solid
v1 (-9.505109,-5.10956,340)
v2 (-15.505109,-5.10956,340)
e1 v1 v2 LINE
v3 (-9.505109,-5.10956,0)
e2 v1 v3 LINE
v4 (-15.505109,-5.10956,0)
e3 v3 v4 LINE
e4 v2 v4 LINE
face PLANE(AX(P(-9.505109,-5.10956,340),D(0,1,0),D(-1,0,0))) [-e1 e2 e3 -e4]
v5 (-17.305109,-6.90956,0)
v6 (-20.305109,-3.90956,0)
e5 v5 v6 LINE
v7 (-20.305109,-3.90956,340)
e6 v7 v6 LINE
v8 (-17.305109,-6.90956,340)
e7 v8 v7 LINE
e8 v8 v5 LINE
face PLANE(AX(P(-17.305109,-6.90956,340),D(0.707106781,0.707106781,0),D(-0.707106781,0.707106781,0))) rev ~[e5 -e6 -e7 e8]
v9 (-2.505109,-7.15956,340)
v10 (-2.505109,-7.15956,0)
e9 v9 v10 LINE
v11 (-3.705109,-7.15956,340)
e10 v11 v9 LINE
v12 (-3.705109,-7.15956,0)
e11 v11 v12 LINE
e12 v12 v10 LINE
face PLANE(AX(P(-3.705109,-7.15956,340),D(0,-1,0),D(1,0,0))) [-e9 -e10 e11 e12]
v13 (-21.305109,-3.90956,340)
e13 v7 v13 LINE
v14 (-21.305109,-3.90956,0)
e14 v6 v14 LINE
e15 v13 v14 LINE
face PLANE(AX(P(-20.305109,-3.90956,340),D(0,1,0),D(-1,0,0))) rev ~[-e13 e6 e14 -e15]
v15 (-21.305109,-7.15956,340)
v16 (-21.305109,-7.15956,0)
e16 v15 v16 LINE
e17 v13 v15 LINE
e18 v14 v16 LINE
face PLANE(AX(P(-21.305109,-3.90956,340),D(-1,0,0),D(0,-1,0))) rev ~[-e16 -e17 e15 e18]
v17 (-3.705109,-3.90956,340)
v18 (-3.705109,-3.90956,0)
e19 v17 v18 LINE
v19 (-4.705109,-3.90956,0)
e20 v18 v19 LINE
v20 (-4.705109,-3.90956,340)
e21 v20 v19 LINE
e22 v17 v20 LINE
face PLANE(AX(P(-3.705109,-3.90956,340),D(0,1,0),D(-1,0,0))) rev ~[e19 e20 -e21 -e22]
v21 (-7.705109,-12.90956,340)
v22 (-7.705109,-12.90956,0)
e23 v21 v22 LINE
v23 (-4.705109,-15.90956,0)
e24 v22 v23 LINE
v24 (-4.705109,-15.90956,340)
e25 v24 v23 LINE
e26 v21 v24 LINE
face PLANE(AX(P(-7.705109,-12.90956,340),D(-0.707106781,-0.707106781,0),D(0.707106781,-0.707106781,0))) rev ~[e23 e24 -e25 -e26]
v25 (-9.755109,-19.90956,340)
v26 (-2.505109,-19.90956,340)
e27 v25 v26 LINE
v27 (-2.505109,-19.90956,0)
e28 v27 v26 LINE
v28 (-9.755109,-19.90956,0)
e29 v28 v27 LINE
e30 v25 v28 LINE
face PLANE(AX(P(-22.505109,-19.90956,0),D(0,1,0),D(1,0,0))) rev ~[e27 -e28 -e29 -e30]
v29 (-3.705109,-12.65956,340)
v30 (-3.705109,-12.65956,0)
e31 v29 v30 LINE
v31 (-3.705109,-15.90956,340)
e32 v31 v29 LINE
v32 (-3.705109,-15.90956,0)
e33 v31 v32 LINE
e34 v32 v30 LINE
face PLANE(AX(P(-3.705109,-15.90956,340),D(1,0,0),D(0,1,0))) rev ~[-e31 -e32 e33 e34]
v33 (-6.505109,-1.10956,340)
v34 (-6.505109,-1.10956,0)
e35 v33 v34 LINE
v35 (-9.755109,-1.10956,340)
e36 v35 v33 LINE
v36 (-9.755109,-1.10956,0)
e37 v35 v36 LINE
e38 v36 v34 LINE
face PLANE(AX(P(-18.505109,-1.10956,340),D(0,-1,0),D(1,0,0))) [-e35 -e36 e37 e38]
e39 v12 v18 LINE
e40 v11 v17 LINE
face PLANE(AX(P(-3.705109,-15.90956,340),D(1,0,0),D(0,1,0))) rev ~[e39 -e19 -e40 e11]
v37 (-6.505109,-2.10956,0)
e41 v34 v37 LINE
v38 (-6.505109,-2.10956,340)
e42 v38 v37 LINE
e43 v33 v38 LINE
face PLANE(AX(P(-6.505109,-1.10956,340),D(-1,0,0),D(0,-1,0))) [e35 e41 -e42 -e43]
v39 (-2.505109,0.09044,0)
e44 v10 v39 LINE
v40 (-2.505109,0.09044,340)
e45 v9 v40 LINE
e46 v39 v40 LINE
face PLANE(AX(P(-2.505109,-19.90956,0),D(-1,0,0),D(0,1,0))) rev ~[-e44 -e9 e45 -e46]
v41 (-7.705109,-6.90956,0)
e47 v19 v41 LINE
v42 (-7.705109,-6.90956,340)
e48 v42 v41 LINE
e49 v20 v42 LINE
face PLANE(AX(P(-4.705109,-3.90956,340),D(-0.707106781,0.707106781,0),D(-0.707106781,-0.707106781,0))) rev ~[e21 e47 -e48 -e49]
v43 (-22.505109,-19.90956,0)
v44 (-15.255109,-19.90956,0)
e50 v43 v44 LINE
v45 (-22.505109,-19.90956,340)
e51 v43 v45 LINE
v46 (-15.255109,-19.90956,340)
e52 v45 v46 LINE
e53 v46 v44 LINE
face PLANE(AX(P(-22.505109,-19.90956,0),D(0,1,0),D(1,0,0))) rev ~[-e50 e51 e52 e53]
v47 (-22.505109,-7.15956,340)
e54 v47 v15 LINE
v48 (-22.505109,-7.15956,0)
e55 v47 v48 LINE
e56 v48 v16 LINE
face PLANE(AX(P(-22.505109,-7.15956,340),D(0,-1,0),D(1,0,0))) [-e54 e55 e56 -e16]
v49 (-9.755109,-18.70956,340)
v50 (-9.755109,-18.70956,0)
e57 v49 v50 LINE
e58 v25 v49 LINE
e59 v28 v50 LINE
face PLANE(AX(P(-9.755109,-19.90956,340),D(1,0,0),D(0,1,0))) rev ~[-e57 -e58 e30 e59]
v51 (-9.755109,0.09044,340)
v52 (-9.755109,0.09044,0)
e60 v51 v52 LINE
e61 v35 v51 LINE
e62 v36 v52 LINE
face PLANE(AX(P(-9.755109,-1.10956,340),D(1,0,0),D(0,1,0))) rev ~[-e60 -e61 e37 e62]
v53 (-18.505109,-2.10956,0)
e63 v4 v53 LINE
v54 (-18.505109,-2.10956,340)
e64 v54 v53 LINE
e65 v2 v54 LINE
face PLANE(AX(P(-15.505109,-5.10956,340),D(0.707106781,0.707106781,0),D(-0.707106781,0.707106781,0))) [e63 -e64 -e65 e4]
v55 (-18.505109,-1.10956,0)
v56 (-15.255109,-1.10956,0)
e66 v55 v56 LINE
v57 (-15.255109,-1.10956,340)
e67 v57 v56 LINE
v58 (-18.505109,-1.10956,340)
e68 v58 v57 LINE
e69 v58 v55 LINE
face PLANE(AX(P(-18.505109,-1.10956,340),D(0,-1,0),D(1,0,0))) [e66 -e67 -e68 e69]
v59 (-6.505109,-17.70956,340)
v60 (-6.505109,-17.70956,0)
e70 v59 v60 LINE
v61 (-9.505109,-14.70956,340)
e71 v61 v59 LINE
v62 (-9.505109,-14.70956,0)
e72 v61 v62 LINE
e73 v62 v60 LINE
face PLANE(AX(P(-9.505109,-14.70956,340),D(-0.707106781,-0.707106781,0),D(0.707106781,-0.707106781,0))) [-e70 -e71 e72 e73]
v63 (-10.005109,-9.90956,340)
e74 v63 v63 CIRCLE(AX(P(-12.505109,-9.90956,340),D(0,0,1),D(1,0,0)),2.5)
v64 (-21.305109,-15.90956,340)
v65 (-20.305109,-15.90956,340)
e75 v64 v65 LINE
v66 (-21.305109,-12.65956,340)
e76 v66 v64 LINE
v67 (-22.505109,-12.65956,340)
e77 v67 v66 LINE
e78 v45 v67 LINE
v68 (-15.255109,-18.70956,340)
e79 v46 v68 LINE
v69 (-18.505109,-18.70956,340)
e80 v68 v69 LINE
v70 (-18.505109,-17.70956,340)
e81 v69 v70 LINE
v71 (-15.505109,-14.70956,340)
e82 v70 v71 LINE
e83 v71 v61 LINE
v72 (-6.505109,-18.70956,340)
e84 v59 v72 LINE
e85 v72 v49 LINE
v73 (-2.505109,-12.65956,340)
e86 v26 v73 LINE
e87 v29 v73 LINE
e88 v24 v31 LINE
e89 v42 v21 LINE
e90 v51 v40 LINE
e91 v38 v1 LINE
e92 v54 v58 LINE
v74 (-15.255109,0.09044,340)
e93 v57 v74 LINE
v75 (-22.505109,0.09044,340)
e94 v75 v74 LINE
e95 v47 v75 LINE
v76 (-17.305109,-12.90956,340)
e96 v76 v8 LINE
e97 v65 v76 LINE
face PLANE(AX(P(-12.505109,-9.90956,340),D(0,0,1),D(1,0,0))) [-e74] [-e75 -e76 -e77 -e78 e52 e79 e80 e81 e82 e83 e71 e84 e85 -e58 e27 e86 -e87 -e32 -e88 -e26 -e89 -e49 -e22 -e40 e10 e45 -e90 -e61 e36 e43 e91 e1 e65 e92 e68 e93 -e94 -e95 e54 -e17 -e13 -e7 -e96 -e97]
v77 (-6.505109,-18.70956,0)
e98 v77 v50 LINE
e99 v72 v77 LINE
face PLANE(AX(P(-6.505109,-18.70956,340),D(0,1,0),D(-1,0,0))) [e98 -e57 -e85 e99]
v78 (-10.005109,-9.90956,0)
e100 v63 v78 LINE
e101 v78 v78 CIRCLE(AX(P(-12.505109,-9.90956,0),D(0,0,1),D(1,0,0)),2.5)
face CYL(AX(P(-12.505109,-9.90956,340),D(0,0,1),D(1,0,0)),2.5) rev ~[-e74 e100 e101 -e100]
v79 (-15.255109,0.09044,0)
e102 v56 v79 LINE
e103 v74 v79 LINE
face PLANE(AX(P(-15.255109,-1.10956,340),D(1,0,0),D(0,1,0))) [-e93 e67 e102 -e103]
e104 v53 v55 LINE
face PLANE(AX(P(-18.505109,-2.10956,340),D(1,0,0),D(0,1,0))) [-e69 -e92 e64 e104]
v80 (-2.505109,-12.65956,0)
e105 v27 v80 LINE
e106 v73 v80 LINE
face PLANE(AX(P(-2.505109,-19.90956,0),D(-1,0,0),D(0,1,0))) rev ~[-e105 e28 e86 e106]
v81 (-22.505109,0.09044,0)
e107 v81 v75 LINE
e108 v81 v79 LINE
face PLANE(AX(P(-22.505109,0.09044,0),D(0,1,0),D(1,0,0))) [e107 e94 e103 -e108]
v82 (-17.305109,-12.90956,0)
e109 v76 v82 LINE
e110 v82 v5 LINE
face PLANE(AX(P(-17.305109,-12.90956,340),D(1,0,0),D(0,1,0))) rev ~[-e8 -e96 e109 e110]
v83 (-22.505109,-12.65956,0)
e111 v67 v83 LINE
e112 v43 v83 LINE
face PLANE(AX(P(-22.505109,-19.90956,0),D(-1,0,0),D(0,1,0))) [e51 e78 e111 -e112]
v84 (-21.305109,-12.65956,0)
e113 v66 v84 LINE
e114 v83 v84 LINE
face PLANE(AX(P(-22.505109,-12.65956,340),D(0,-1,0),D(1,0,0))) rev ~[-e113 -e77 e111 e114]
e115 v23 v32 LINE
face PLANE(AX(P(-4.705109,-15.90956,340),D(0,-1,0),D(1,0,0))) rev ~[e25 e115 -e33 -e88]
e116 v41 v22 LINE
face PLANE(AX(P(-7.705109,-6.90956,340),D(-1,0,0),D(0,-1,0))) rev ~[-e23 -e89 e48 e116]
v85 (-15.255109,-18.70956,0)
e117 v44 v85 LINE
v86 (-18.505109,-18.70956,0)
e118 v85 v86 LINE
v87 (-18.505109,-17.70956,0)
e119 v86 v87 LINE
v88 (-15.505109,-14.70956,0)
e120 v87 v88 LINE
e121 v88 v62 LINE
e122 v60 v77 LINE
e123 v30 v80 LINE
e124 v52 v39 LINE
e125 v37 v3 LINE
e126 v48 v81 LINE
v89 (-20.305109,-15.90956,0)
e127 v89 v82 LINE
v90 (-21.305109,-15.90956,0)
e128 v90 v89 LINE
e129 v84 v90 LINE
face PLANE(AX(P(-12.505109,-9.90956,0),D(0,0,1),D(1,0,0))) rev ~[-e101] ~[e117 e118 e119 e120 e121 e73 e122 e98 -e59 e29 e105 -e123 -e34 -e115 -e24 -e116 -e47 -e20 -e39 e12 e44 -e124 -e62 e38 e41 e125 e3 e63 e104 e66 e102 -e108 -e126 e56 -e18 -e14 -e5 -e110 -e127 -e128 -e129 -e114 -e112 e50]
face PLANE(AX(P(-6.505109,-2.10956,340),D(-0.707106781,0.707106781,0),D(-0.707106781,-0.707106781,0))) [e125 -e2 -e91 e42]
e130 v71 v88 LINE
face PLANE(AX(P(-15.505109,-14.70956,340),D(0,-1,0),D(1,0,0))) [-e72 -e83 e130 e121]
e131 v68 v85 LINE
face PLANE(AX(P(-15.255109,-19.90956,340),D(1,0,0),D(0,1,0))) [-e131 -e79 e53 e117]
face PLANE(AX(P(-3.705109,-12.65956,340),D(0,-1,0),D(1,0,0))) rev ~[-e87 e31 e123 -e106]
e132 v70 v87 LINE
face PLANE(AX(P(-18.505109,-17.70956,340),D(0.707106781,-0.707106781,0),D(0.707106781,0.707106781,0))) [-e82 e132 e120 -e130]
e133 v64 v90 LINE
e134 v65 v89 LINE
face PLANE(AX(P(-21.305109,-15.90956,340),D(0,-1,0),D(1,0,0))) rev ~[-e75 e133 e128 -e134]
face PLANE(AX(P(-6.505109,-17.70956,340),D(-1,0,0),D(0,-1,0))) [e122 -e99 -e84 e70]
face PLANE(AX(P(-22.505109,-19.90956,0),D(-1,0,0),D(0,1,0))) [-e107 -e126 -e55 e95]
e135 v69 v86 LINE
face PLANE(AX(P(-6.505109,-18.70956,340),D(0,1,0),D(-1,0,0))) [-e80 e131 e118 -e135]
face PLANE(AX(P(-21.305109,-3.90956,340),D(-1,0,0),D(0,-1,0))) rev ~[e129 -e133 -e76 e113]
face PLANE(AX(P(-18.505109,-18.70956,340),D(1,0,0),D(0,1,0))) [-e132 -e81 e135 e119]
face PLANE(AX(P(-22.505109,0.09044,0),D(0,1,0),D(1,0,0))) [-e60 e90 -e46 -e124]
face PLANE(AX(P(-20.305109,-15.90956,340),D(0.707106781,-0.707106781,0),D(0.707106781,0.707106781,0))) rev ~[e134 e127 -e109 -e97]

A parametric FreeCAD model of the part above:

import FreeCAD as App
import Part
import Sketcher

V = App.Vector
Q = App.Units.Quantity


def add_polygon(sketch, points):
    """Adds a closed chain of lines whose ends are joined by coincident constraints."""
    first, n = sketch.GeometryCount, len(points)
    for a, b in zip(points, points[1:] + points[:1]):
        sketch.addGeometry(Part.LineSegment(App.Vector(*a, 0), App.Vector(*b, 0)), False)
    for i in range(n):
        sketch.addConstraint(Sketcher.Constraint("Coincident", first + i, 2, first + (i + 1) % n, 1))

doc = App.newDocument("Part")
params = doc.addObject("Spreadsheet::Sheet", "Params")
for row, (alias, value) in enumerate([
    ("sketch1_width", "20 mm"),
    ("pad1_length", "340 mm"),
    ("sketch2_width", "1.2 mm"),
    ("sketch2_width2", "5.5 mm"),
    ("sketch3_width", "1 mm"),
    ("sketch3_width2", "12 mm"),
    ("sketch3_width3", "6 mm"),
    ("sketch4_diameter", "5 mm"),
], start=1):
    params.set(f"A{row}", alias)
    params.set(f"B{row}", "=" + value)
    params.setAlias(f"B{row}", alias)

body = doc.addObject("PartDesign::Body", "Body")

sketch1 = doc.addObject("Sketcher::SketchObject", "Sketch")
body.addObject(sketch1)
sketch1.AttachmentSupport = (doc.XY_Plane, [""])
sketch1.MapMode = "FlatFace"
add_polygon(sketch1, [(-23, 0), (-23, -20), (-3, -20), (-3, 0)])
sketch1.addConstraint(Sketcher.Constraint("Vertical", 0))
sketch1.addConstraint(Sketcher.Constraint("Horizontal", 1))
sketch1.addConstraint(Sketcher.Constraint("Vertical", 2))
sketch1.addConstraint(Sketcher.Constraint("Horizontal", 3))
sketch1.addConstraint(Sketcher.Constraint("Equal", 3, 0))
sketch1.addConstraint(Sketcher.Constraint("DistanceX", 1, 1, 1, 2, Q("20 mm")))
sketch1.addConstraint(Sketcher.Constraint("DistanceX", 0, 2, -1, 1, Q("22.505109 mm")))
sketch1.addConstraint(Sketcher.Constraint("DistanceY", 0, 2, -1, 1, Q("19.90956 mm")))
sketch1.setExpression("Constraints[9]", "Params.sketch1_width")
pad1 = doc.addObject("PartDesign::Pad", "Pad")
body.addObject(pad1)
pad1.Profile = sketch1
pad1.setExpression("Length", "Params.pad1_length")

sketch2 = doc.addObject("Sketcher::SketchObject", "Sketch001")
body.addObject(sketch2)
sketch2.AttachmentSupport = (doc.XY_Plane, [""])
sketch2.MapMode = "FlatFace"
sketch2.AttachmentOffset = App.Placement(V(0, 0, 340), App.Rotation())
add_polygon(sketch2, [(-22.5, -7.2), (-22.5, -12.7), (-21.3, -12.7), (-21.3, -7.2)])
add_polygon(sketch2, [(-15.3, 0.1), (-15.3, -1.1), (-9.8, -1.1), (-9.8, 0.1)])
add_polygon(sketch2, [(-3.7, -7.2), (-3.7, -12.7), (-2.5, -12.7), (-2.5, -7.2)])
add_polygon(sketch2, [(-15.3, -18.7), (-15.3, -19.9), (-9.8, -19.9), (-9.8, -18.7)])
sketch2.addConstraint(Sketcher.Constraint("Vertical", 0))
sketch2.addConstraint(Sketcher.Constraint("Horizontal", 1))
sketch2.addConstraint(Sketcher.Constraint("Vertical", 2))
sketch2.addConstraint(Sketcher.Constraint("Horizontal", 3))
sketch2.addConstraint(Sketcher.Constraint("Vertical", 4))
sketch2.addConstraint(Sketcher.Constraint("Horizontal", 5))
sketch2.addConstraint(Sketcher.Constraint("Vertical", 6))
sketch2.addConstraint(Sketcher.Constraint("Horizontal", 7))
sketch2.addConstraint(Sketcher.Constraint("Vertical", 8))
sketch2.addConstraint(Sketcher.Constraint("Horizontal", 9))
sketch2.addConstraint(Sketcher.Constraint("Vertical", 10))
sketch2.addConstraint(Sketcher.Constraint("Horizontal", 11))
sketch2.addConstraint(Sketcher.Constraint("Vertical", 12))
sketch2.addConstraint(Sketcher.Constraint("Horizontal", 13))
sketch2.addConstraint(Sketcher.Constraint("Vertical", 14))
sketch2.addConstraint(Sketcher.Constraint("Horizontal", 15))
sketch2.addConstraint(Sketcher.Constraint("Horizontal", 1, 2, 8, 2))
sketch2.addConstraint(Sketcher.Constraint("Horizontal", 3, 2, 10, 2))
sketch2.addConstraint(Sketcher.Constraint("Vertical", 7, 2, 12, 2))
sketch2.addConstraint(Sketcher.Constraint("Vertical", 6, 2, 13, 2))
sketch2.addConstraint(Sketcher.Constraint("Equal", 3, 9))
sketch2.addConstraint(Sketcher.Constraint("Equal", 15, 0))
sketch2.addConstraint(Sketcher.Constraint("Equal", 11, 4))
sketch2.addConstraint(Sketcher.Constraint("Equal", 6, 12))
sketch2.addConstraint(Sketcher.Constraint("DistanceX", 1, 1, 1, 2, Q("1.2 mm")))
sketch2.addConstraint(Sketcher.Constraint("DistanceX", 5, 1, 5, 2, Q("5.5 mm")))
sketch2.addConstraint(Sketcher.Constraint("DistanceX", 1, 2, 8, 2, Q("17.6 mm")))
sketch2.addConstraint(Sketcher.Constraint("DistanceX", 2, 2, 4, 2, Q("6.05 mm")))
sketch2.addConstraint(Sketcher.Constraint("DistanceY", 2, 2, 4, 2, Q("6.05 mm")))
sketch2.addConstraint(Sketcher.Constraint("DistanceY", 12, 2, 1, 2, Q("7.25 mm")))
sketch2.addConstraint(Sketcher.Constraint("DistanceX", 0, 2, -1, 1, Q("22.505109 mm")))
sketch2.addConstraint(Sketcher.Constraint("DistanceY", 0, 2, -1, 1, Q("12.65956 mm")))
sketch2.setExpression("Constraints[40]", "Params.sketch2_width")
sketch2.setExpression("Constraints[41]", "Params.sketch2_width2")
pocket1 = doc.addObject("PartDesign::Pocket", "Pocket")
body.addObject(pocket1)
pocket1.Profile = sketch2
pocket1.Type = "ThroughAll"

sketch3 = doc.addObject("Sketcher::SketchObject", "Sketch002")
body.addObject(sketch3)
sketch3.AttachmentSupport = (doc.XY_Plane, [""])
sketch3.MapMode = "FlatFace"
sketch3.AttachmentOffset = App.Placement(V(0, 0, 340), App.Rotation())
add_polygon(sketch3, [(-21.3, -15.9), (-20.3, -15.9), (-17.3, -12.9), (-17.3, -6.9), (-20.3, -3.9), (-21.3, -3.9)])
add_polygon(sketch3, [(-6.5, -1.1), (-18.5, -1.1), (-18.5, -2.1), (-15.5, -5.1), (-9.5, -5.1), (-6.5, -2.1)])
add_polygon(sketch3, [(-3.7, -3.9), (-4.7, -3.9), (-7.7, -6.9), (-7.7, -12.9), (-4.7, -15.9), (-3.7, -15.9)])
add_polygon(sketch3, [(-18.5, -18.7), (-6.5, -18.7), (-6.5, -17.7), (-9.5, -14.7), (-15.5, -14.7), (-18.5, -17.7)])
sketch3.addConstraint(Sketcher.Constraint("Horizontal", 0))
sketch3.addConstraint(Sketcher.Constraint("Vertical", 2))
sketch3.addConstraint(Sketcher.Constraint("Horizontal", 4))
sketch3.addConstraint(Sketcher.Constraint("Vertical", 5))
sketch3.addConstraint(Sketcher.Constraint("Horizontal", 6))
sketch3.addConstraint(Sketcher.Constraint("Vertical", 7))
sketch3.addConstraint(Sketcher.Constraint("Horizontal", 9))
sketch3.addConstraint(Sketcher.Constraint("Vertical", 11))
sketch3.addConstraint(Sketcher.Constraint("Horizontal", 12))
sketch3.addConstraint(Sketcher.Constraint("Vertical", 14))
sketch3.addConstraint(Sketcher.Constraint("Horizontal", 16))
sketch3.addConstraint(Sketcher.Constraint("Vertical", 17))
sketch3.addConstraint(Sketcher.Constraint("Horizontal", 18))
sketch3.addConstraint(Sketcher.Constraint("Vertical", 19))
sketch3.addConstraint(Sketcher.Constraint("Horizontal", 21))
sketch3.addConstraint(Sketcher.Constraint("Vertical", 23))
sketch3.addConstraint(Sketcher.Constraint("Perpendicular", 1, 3))
sketch3.addConstraint(Sketcher.Constraint("Parallel", 3, 8))
sketch3.addConstraint(Sketcher.Constraint("Perpendicular", 8, 10))
sketch3.addConstraint(Sketcher.Constraint("Parallel", 10, 13))
sketch3.addConstraint(Sketcher.Constraint("Perpendicular", 13, 15))
sketch3.addConstraint(Sketcher.Constraint("Parallel", 15, 20))
sketch3.addConstraint(Sketcher.Constraint("Perpendicular", 20, 22))
sketch3.addConstraint(Sketcher.Constraint("Horizontal", 7, 2, 10, 2))
sketch3.addConstraint(Sketcher.Constraint("Horizontal", 4, 2, 12, 2))
sketch3.addConstraint(Sketcher.Constraint("Horizontal", 2, 2, 13, 2))
sketch3.addConstraint(Sketcher.Constraint("Horizontal", 1, 2, 14, 2))
sketch3.addConstraint(Sketcher.Constraint("Horizontal", 5, 2, 15, 2))
sketch3.addConstraint(Sketcher.Constraint("Horizontal", 19, 2, 22, 2))
sketch3.addConstraint(Sketcher.Constraint("Vertical", 0, 2, 3, 2))
sketch3.addConstraint(Sketcher.Constraint("Vertical", 12, 2, 15, 2))
sketch3.addConstraint(Sketcher.Constraint("Vertical", 11, 2, 18, 2))
sketch3.addConstraint(Sketcher.Constraint("Vertical", 9, 2, 20, 2))
sketch3.addConstraint(Sketcher.Constraint("Vertical", 8, 2, 21, 2))
sketch3.addConstraint(Sketcher.Constraint("Equal", 4, 12))
sketch3.addConstraint(Sketcher.Constraint("Equal", 21, 2))
sketch3.addConstraint(Sketcher.Constraint("Equal", 18, 5))
sketch3.addConstraint(Sketcher.Constraint("Equal", 16, 7))
sketch3.addConstraint(Sketcher.Constraint("Equal", 11, 19))
sketch3.addConstraint(Sketcher.Constraint("DistanceX", 0, 1, 0, 2, Q("1 mm")))
sketch3.addConstraint(Sketcher.Constraint("DistanceX", 6, 2, 6, 1, Q("12 mm")))
sketch3.addConstraint(Sketcher.Constraint("DistanceX", 9, 1, 9, 2, Q("6 mm")))
sketch3.addConstraint(Sketcher.Constraint("DistanceX", 3, 2, 6, 2, Q("1.8 mm")))
sketch3.addConstraint(Sketcher.Constraint("DistanceY", 3, 2, 6, 2, Q("2.8 mm")))
sketch3.addConstraint(Sketcher.Constraint("DistanceX", 10, 2, 12, 2, Q("1.8 mm")))
sketch3.addConstraint(Sketcher.Constraint("DistanceY", 18, 2, 15, 2, Q("2.8 mm")))
sketch3.addConstraint(Sketcher.Constraint("DistanceX", 0, 2, -1, 1, Q("20.305109 mm")))
sketch3.addConstraint(Sketcher.Constraint("DistanceY", 0, 2, -1, 1, Q("15.90956 mm")))
sketch3.setExpression("Constraints[63]", "Params.sketch3_width")
sketch3.setExpression("Constraints[64]", "Params.sketch3_width2")
sketch3.setExpression("Constraints[65]", "Params.sketch3_width3")
pocket2 = doc.addObject("PartDesign::Pocket", "Pocket001")
body.addObject(pocket2)
pocket2.Profile = sketch3
pocket2.Type = "ThroughAll"

sketch4 = doc.addObject("Sketcher::SketchObject", "Sketch003")
body.addObject(sketch4)
sketch4.AttachmentSupport = (doc.XY_Plane, [""])
sketch4.MapMode = "FlatFace"
sketch4.AttachmentOffset = App.Placement(V(0, 0, 340), App.Rotation())
sketch4.addGeometry(Part.Circle(V(-12.5, -9.9, 0), V(0, 0, 1), 2.5), False)
sketch4.addConstraint(Sketcher.Constraint("Diameter", 0, Q("5 mm")))
sketch4.addConstraint(Sketcher.Constraint("DistanceX", 0, 3, -1, 1, Q("12.505109 mm")))
sketch4.addConstraint(Sketcher.Constraint("DistanceY", 0, 3, -1, 1, Q("9.90956 mm")))
sketch4.setExpression("Constraints[0]", "Params.sketch4_diameter")
pocket3 = doc.addObject("PartDesign::Pocket", "Pocket002")
body.addObject(pocket3)
pocket3.Profile = sketch4
pocket3.Type = "ThroughAll"

doc.recompute()
